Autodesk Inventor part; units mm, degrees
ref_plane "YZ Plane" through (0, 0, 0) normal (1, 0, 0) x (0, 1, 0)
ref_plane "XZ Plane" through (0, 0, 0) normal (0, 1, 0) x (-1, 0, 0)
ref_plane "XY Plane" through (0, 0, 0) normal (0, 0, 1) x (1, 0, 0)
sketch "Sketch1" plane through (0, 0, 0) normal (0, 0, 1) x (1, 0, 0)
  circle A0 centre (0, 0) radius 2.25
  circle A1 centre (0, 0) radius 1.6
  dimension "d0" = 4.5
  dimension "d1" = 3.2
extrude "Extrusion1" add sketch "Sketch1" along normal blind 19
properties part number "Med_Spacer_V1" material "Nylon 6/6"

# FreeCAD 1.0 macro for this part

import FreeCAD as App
import Part
import Sketcher

doc = App.newDocument("Part")
body = doc.addObject("PartDesign::Body", "Body")

# Sketch on XY plane
sketch1 = body.newObject("Sketcher::SketchObject", "Sketch")
sketch1.AttachmentSupport = (doc.getObject("XY_Plane"), [""])
sketch1.MapMode = "FlatFace"
sketch1.addGeometry([
    Part.Circle(App.Vector(0, 0, 0), App.Vector(0, 0, 1), 2.2),
    Part.Circle(App.Vector(0, 0, 0), App.Vector(0, 0, 1), 1.6),
], False)
sketch1.addConstraint([
    Sketcher.Constraint("Coincident", 0, 3, -1, 1),
    Sketcher.Constraint("Coincident", 1, 3, -1, 1),
    Sketcher.Constraint("Diameter", 0, 4.5),
    Sketcher.Constraint("Diameter", 1, 3.2),
])
pad1 = body.newObject("PartDesign::Pad", "Pad")
pad1.Profile = sketch1
pad1.Length = 19

doc.recompute()
